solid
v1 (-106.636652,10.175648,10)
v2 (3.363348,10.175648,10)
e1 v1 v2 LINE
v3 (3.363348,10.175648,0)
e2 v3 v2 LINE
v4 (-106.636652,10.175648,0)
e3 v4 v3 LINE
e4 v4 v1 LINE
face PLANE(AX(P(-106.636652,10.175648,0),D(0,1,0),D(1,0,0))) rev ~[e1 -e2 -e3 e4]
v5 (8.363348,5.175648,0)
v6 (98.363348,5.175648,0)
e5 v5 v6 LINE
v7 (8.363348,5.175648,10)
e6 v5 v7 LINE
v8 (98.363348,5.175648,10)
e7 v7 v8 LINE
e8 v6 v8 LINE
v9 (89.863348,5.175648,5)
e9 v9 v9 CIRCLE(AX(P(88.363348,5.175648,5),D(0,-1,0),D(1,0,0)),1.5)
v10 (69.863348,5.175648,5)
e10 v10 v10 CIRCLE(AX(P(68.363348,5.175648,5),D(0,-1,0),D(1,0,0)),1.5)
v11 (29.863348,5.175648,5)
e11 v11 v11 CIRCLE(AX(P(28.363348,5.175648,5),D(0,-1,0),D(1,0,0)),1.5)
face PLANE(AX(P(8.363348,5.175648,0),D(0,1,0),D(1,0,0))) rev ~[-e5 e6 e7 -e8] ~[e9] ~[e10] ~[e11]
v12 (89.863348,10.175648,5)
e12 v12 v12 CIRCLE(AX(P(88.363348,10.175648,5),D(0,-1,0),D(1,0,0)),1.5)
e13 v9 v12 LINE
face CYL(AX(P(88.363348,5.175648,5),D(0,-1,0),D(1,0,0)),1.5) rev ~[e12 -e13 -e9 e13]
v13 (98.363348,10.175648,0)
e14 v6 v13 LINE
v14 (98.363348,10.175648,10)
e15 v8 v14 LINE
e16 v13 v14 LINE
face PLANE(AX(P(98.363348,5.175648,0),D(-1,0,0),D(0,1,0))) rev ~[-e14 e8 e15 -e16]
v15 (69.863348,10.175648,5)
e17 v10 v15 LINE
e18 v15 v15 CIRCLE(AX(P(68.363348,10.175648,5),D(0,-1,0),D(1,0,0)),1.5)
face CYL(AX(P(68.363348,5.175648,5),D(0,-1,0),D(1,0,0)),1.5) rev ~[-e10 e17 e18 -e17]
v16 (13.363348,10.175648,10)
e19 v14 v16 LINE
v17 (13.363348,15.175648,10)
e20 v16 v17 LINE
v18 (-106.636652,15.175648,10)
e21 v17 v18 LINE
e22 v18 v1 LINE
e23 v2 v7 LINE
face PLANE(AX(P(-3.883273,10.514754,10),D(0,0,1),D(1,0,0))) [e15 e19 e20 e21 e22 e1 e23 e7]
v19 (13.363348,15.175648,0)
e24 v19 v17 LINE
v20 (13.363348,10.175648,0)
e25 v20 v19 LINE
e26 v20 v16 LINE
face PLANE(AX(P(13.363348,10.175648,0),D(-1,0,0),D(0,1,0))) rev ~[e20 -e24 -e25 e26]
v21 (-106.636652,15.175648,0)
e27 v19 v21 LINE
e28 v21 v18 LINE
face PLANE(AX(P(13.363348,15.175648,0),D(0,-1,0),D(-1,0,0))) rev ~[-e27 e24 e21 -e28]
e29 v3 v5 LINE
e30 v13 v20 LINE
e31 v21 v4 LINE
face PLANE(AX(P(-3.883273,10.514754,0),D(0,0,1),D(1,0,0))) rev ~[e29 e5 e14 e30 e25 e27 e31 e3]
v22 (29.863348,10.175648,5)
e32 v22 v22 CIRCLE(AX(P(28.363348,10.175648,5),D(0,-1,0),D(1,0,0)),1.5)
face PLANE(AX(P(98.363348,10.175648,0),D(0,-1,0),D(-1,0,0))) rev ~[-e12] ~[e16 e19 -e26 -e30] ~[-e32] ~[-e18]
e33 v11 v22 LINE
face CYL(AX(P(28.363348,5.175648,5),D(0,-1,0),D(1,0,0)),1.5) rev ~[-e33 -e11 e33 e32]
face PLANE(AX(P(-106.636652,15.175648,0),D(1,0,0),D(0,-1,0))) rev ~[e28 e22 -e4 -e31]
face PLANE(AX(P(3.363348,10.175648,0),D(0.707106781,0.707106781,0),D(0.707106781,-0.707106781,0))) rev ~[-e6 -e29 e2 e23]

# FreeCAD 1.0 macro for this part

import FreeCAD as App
import Part
import Sketcher
from FreeCAD import Vector
Q = App.Units.Quantity


def add_polygon(sketch, points):
    """Adds a closed chain of lines whose ends are joined by coincident constraints."""
    first, n = sketch.GeometryCount, len(points)
    for a, b in zip(points, points[1:] + points[:1]):
        sketch.addGeometry(Part.LineSegment(App.Vector(*a, 0), App.Vector(*b, 0)), False)
    for i in range(n):
        sketch.addConstraint(Sketcher.Constraint("Coincident", first + i, 2, first + (i + 1) % n, 1))

doc = App.newDocument("Part")
params = doc.addObject("Spreadsheet::Sheet", "Params")
for row, (alias, value) in enumerate([
    ("sketch1_width", "120 mm"),
    ("sketch1_width2", "110 mm"),
    ("sketch1_width3", "90 mm"),
    ("sketch1_width4", "85 mm"),
    ("sketch1_height", "5 mm"),
    ("pad1_length", "10 mm"),
    ("sketch2_diameter", "3 mm"),
], start=1):
    params.set(f"A{row}", alias)
    params.set(f"B{row}", "=" + value)
    params.setAlias(f"B{row}", alias)

body = doc.addObject("PartDesign::Body", "Body")

# Sketch on XY plane
sketch1 = doc.addObject("Sketcher::SketchObject", "Sketch")
body.addObject(sketch1)
sketch1.AttachmentSupport = (doc.XY_Plane, [""])
sketch1.MapMode = "FlatFace"
add_polygon(sketch1, [(13, 15), (-107, 15), (-107, 10), (3, 10), (8, 5), (98, 5), (98, 10), (13, 10)])  # lines 0-7
sketch1.addConstraint([
    Sketcher.Constraint("Horizontal", 0),
    Sketcher.Constraint("Vertical", 1),
    Sketcher.Constraint("Horizontal", 2),
    Sketcher.Constraint("Horizontal", 4),
    Sketcher.Constraint("Vertical", 5),
    Sketcher.Constraint("Horizontal", 6),
    Sketcher.Constraint("Vertical", 7),
    Sketcher.Constraint("Horizontal", 2, 2, 5, 2),
    Sketcher.Constraint("Equal", 1, 5),
    Sketcher.Constraint("DistanceX", 0, 2, 0, 1, Q("120 mm")),
    Sketcher.Constraint("DistanceX", 2, 1, 2, 2, Q("110 mm")),
    Sketcher.Constraint("DistanceX", 4, 1, 4, 2, Q("90 mm")),
    Sketcher.Constraint("DistanceX", 6, 2, 6, 1, Q("85 mm")),
    Sketcher.Constraint("DistanceY", 1, 2, 1, 1, Q("5 mm")),
    Sketcher.Constraint("DistanceX", 0, 2, -1, 1, Q("106.636652 mm")),
    Sketcher.Constraint("DistanceY", -1, 1, 0, 2, Q("15.175648 mm")),
])
sketch1.setExpression("Constraints[17]", "Params.sketch1_width")
sketch1.setExpression("Constraints[18]", "Params.sketch1_width2")
sketch1.setExpression("Constraints[19]", "Params.sketch1_width3")
sketch1.setExpression("Constraints[20]", "Params.sketch1_width4")
sketch1.setExpression("Constraints[21]", "Params.sketch1_height")
pad1 = doc.addObject("PartDesign::Pad", "Pad")
body.addObject(pad1)
pad1.Profile = sketch1
pad1.setExpression("Length", "Params.pad1_length")

# Sketch on XZ plane
sketch2 = doc.addObject("Sketcher::SketchObject", "Sketch001")
body.addObject(sketch2)
sketch2.AttachmentSupport = (doc.XZ_Plane, [""])
sketch2.MapMode = "FlatFace"
sketch2.AttachmentOffset = App.Placement(Vector(0, 0, -5.175648), App.Rotation())
sketch2.addGeometry([
    Part.Circle(Vector(88.4, 5, 0), Vector(0, 0, 1), 1.5),
    Part.Circle(Vector(68.4, 5, 0), Vector(0, 0, 1), 1.5),
    Part.Circle(Vector(28.4, 5, 0), Vector(0, 0, 1), 1.5),
], False)
sketch2.addConstraint([
    Sketcher.Constraint("Equal", 0, 1),
    Sketcher.Constraint("Equal", 1, 2),
    Sketcher.Constraint("Horizontal", 0, 3, 1, 3),
    Sketcher.Constraint("Horizontal", 1, 3, 2, 3),
    Sketcher.Constraint("Diameter", 0, Q("3 mm")),
    Sketcher.Constraint("DistanceY", -1, 1, 0, 3, Q("5 mm")),
    Sketcher.Constraint("DistanceX", 1, 3, 0, 3, Q("20 mm")),
    Sketcher.Constraint("DistanceX", 2, 3, 1, 3, Q("40 mm")),
    Sketcher.Constraint("DistanceX", -1, 1, 0, 3, Q("88.363348 mm")),
])
sketch2.setExpression("Constraints[4]", "Params.sketch2_diameter")
pocket1 = doc.addObject("PartDesign::Pocket", "Pocket")
body.addObject(pocket1)
pocket1.Profile = sketch2
pocket1.Type = "ThroughAll"

doc.recompute()
